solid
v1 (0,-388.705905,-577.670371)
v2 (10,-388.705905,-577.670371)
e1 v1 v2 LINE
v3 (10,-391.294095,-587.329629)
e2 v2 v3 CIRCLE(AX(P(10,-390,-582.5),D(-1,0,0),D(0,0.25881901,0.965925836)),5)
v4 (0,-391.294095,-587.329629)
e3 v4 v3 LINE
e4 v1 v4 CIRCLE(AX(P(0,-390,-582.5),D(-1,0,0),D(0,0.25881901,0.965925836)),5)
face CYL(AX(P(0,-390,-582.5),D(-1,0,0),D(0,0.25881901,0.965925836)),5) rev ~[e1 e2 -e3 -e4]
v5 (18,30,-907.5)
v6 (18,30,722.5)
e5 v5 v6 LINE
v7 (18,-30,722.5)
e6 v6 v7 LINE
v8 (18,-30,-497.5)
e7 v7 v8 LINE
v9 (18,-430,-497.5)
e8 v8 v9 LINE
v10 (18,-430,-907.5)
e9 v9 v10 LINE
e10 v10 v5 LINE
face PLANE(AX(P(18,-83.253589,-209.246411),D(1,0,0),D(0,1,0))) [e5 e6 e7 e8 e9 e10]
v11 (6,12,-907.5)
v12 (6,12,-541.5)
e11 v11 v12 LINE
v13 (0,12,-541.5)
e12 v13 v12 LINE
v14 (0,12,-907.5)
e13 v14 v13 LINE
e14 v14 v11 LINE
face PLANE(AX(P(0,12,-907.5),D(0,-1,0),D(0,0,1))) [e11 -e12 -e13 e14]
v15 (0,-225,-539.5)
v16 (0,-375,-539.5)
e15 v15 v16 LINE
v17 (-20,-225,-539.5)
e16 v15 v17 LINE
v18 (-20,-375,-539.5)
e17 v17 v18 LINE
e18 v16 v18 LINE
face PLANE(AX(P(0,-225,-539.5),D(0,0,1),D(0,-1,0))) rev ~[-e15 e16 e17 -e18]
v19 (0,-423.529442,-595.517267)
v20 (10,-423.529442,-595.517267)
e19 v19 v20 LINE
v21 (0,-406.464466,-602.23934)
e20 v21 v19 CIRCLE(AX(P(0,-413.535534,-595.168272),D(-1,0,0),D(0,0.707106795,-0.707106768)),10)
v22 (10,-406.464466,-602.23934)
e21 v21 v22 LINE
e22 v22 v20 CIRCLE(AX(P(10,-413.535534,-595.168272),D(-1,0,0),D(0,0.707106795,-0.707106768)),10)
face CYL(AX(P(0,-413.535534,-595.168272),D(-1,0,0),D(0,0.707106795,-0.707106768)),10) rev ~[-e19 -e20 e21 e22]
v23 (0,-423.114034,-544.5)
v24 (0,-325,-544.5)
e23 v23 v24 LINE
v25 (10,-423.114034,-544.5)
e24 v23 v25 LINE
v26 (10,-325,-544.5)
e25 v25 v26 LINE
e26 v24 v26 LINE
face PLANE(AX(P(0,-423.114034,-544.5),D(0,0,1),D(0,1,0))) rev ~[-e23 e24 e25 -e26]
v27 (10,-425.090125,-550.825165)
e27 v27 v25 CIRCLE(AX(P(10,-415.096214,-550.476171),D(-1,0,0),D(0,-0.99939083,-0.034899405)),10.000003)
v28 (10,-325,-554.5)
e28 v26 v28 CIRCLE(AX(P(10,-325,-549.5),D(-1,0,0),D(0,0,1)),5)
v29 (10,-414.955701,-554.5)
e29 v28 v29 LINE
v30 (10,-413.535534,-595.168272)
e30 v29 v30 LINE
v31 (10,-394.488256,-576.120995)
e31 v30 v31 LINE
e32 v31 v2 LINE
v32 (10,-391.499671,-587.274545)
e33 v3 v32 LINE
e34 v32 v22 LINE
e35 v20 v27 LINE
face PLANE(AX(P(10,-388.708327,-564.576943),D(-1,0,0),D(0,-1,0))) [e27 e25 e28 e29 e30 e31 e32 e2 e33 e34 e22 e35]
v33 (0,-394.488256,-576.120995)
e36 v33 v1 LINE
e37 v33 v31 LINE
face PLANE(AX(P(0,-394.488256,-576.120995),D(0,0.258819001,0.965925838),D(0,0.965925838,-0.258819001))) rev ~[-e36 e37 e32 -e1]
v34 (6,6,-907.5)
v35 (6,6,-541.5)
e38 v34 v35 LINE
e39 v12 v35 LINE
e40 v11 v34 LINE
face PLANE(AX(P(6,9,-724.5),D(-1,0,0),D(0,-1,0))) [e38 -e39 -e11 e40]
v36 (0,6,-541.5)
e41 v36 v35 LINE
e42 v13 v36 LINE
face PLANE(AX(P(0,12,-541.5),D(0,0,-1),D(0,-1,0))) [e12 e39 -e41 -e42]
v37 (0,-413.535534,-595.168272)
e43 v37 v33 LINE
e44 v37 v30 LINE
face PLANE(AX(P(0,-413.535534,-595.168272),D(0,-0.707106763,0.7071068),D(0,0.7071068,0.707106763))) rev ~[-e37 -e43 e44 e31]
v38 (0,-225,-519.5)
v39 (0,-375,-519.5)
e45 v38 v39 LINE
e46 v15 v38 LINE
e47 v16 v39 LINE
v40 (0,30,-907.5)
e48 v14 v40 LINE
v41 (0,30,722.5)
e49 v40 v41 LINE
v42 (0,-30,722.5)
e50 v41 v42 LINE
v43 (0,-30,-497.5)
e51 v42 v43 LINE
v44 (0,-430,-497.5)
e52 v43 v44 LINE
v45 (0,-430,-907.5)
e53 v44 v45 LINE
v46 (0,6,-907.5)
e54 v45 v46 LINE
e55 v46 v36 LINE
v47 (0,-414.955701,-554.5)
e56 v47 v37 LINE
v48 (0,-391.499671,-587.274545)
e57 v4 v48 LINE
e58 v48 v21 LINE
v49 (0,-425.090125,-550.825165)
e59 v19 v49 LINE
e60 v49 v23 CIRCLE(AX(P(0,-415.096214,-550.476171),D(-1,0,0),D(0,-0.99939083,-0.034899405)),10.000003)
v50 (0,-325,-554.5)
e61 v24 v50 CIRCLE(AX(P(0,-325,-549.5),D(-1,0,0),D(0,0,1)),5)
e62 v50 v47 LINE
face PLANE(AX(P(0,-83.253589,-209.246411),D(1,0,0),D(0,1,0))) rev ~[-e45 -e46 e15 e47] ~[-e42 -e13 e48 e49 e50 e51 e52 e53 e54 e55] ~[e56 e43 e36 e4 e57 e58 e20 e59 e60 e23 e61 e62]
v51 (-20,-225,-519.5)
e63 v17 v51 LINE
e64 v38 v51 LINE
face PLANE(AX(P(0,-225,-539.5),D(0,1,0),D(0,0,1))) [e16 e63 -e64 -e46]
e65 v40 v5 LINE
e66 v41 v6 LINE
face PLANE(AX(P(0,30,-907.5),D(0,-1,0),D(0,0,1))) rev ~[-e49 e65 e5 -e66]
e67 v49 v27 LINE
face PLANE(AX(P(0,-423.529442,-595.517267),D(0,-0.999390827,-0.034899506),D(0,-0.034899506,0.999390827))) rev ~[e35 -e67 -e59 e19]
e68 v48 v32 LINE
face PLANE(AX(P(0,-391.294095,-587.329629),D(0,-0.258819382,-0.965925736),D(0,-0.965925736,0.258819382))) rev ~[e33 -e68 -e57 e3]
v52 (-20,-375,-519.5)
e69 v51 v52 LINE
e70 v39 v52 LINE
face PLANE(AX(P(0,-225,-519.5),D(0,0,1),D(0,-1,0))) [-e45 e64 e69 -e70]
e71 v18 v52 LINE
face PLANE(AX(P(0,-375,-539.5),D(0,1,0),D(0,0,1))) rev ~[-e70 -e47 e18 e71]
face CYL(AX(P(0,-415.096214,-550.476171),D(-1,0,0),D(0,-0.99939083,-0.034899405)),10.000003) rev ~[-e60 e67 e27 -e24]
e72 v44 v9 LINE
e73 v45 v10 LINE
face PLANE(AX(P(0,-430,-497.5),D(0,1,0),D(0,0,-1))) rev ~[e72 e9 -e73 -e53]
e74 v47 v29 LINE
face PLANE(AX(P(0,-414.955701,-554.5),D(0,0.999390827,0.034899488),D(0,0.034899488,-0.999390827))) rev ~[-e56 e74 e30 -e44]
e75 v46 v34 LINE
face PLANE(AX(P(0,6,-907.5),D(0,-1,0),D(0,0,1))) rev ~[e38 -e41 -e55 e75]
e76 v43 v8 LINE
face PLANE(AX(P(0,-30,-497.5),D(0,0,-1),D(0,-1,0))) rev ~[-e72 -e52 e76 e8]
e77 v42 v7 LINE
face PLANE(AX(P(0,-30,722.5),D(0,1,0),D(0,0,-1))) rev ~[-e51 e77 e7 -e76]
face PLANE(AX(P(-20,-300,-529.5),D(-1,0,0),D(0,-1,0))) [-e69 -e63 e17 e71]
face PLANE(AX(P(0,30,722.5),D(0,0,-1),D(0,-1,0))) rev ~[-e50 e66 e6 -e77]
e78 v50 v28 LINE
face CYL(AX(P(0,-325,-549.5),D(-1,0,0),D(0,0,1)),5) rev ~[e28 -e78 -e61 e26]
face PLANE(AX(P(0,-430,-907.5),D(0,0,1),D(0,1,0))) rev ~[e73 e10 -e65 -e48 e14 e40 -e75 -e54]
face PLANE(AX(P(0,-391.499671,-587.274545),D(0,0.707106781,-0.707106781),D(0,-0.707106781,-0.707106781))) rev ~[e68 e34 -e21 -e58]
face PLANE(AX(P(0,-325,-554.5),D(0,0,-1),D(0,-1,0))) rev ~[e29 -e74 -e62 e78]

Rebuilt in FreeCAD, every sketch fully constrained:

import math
import FreeCAD as App
import Part
import Sketcher

V = App.Vector
Q = App.Units.Quantity

doc = App.newDocument("Part")
body = doc.addObject("PartDesign::Body", "Body")

# Sketch on YZ plane
sketch1 = doc.addObject("Sketcher::SketchObject", "Sketch")
body.addObject(sketch1)
sketch1.AttachmentSupport = (doc.YZ_Plane, [""])
sketch1.MapMode = "FlatFace"
sketch1.addGeometry([
    Part.LineSegment(V(30, -907.5, 0), V(30, 722.5, 0)),  # 0
    Part.LineSegment(V(30, 722.5, 0), V(-30, 722.5, 0)),  # 1
    Part.LineSegment(V(-30, 722.5, 0), V(-30, -497.5, 0)),  # 2
    Part.LineSegment(V(-30, -497.5, 0), V(-430, -497.5, 0)),  # 3
    Part.LineSegment(V(-430, -497.5, 0), V(-430, -907.5, 0)),  # 4
    Part.LineSegment(V(-430, -907.5, 0), V(30, -907.5, 0)),  # 5
], False)
sketch1.addConstraint([
    Sketcher.Constraint("Coincident", 0, 2, 1, 1),
    Sketcher.Constraint("Coincident", 1, 2, 2, 1),
    Sketcher.Constraint("Coincident", 2, 2, 3, 1),
    Sketcher.Constraint("Coincident", 3, 2, 4, 1),
    Sketcher.Constraint("Coincident", 4, 2, 5, 1),
    Sketcher.Constraint("Coincident", 5, 2, 0, 1),
    Sketcher.Constraint("Vertical", 0),
    Sketcher.Constraint("Horizontal", 1),
    Sketcher.Constraint("Vertical", 2),
    Sketcher.Constraint("Horizontal", 3),
    Sketcher.Constraint("Vertical", 4),
    Sketcher.Constraint("Horizontal", 5),
    Sketcher.Constraint("DistanceX", 1, 2, 1, 1, 60.0),
    Sketcher.Constraint("DistanceX", 3, 2, 3, 1, 400.0),
    Sketcher.Constraint("DistanceY", 0, 1, 0, 2, 1630.0),
    Sketcher.Constraint("DistanceY", 2, 2, 2, 1, 1220.0),
    Sketcher.Constraint("DistanceX", -1, 1, 0, 2, 30.0),
    Sketcher.Constraint("DistanceY", -1, 1, 0, 2, 722.5),
])
pad1 = doc.addObject("PartDesign::Pad", "Pad")
body.addObject(pad1)
pad1.Profile = sketch1
pad1.Length = 18

# Sketch on YZ plane
sketch2 = doc.addObject("Sketcher::SketchObject", "Sketch001")
body.addObject(sketch2)
sketch2.AttachmentSupport = (doc.YZ_Plane, [""])
sketch2.MapMode = "FlatFace"
sketch2.addGeometry([
    Part.LineSegment(V(12, -541.5, 0), V(12, -907.5, 0)),
    Part.LineSegment(V(12, -907.5, 0), V(6, -907.5, 0)),
    Part.LineSegment(V(6, -907.5, 0), V(6, -541.5, 0)),
    Part.LineSegment(V(6, -541.5, 0), V(12, -541.5, 0)),
], False)
sketch2.addConstraint([
    Sketcher.Constraint("Coincident", 0, 2, 1, 1),
    Sketcher.Constraint("Coincident", 1, 2, 2, 1),
    Sketcher.Constraint("Coincident", 2, 2, 3, 1),
    Sketcher.Constraint("Coincident", 3, 2, 0, 1),
    Sketcher.Constraint("Vertical", 0),
    Sketcher.Constraint("Horizontal", 1),
    Sketcher.Constraint("Vertical", 2),
    Sketcher.Constraint("Horizontal", 3),
    Sketcher.Constraint("DistanceX", 1, 2, 1, 1, 6.0),
    Sketcher.Constraint("DistanceY", 0, 2, 0, 1, 366.0),
    Sketcher.Constraint("DistanceX", -1, 1, 0, 2, 12.0),
    Sketcher.Constraint("DistanceY", 0, 2, -1, 1, 907.5),
])
pocket1 = doc.addObject("PartDesign::Pocket", "Pocket")
body.addObject(pocket1)
pocket1.Profile = sketch2
pocket1.Length = 6
pocket1.Reversed = True

# Sketch on YZ plane
sketch3 = doc.addObject("Sketcher::SketchObject", "Sketch002")
body.addObject(sketch3)
sketch3.AttachmentSupport = (doc.YZ_Plane, [""])
sketch3.MapMode = "FlatFace"
sketch3.addGeometry([
    Part.LineSegment(V(-394.488256, -576.120995, 0), V(-388.705905, -577.670371, 0)),  # 0
    Part.ArcOfCircle(Part.Circle(V(-390, -582.5, 0), V(0, 0, 1), 5), math.radians(-104.999998), math.radians(75.000002)),  # 1
    Part.LineSegment(V(-391.294095, -587.329629, 0), V(-391.499671, -587.274545, 0)),  # 2
    Part.LineSegment(V(-391.499671, -587.274545, 0), V(-406.464466, -602.23934, 0)),  # 3
    Part.ArcOfCircle(Part.Circle(V(-413.535534, -595.168272, 0), V(0, 0, 1), 10), math.radians(-178.000002), math.radians(-44.999999)),  # 4
    Part.LineSegment(V(-423.529442, -595.517267, 0), V(-425.090125, -550.825165, 0)),  # 5
    Part.ArcOfCircle(Part.Circle(V(-415.096214, -550.476171, 0), V(0, 0, 1), 10.000003), math.radians(143.300589), math.radians(181.999995)),  # 6
    Part.LineSegment(V(-423.114034, -544.5, 0), V(-325, -544.5, 0)),  # 7
    Part.ArcOfCircle(Part.Circle(V(-325, -549.5, 0), V(0, 0, 1), 5), math.radians(-90), math.radians(90)),  # 8
    Part.LineSegment(V(-325, -554.5, 0), V(-414.955701, -554.5, 0)),  # 9
    Part.LineSegment(V(-414.955701, -554.5, 0), V(-413.535534, -595.168272, 0)),  # 10
    Part.LineSegment(V(-413.535534, -595.168272, 0), V(-394.488256, -576.120995, 0)),  # 11
], False)
sketch3.addConstraint([
    Sketcher.Constraint("Tangent", 0, 2, 1, 2),
    Sketcher.Constraint("Tangent", 1, 1, 2, 1),
    Sketcher.Constraint("Coincident", 2, 2, 3, 1),
    Sketcher.Constraint("Tangent", 3, 2, 4, 2),
    Sketcher.Constraint("Tangent", 4, 1, 5, 1),
    Sketcher.Constraint("Tangent", 5, 2, 6, 2),
    Sketcher.Constraint("Coincident", 6, 1, 7, 1),
    Sketcher.Constraint("Tangent", 7, 2, 8, 2),
    Sketcher.Constraint("Tangent", 8, 1, 9, 1),
    Sketcher.Constraint("Coincident", 9, 2, 10, 1),
    Sketcher.Constraint("Coincident", 10, 2, 11, 1),
    Sketcher.Constraint("Coincident", 11, 2, 0, 1),
    Sketcher.Constraint("Horizontal", 7),
    Sketcher.Constraint("Horizontal", 9),
    Sketcher.Constraint("Coincident", 10, 2, 4, 3),
    Sketcher.Constraint("Equal", 1, 8),
    Sketcher.Constraint("Parallel", 0, 2),
    Sketcher.Constraint("Parallel", 5, 10),
    Sketcher.Constraint("Parallel", 3, 11),
    Sketcher.Constraint("Radius", 1, 5.0),
    Sketcher.Constraint("Radius", 4, 10.0),
    Sketcher.Constraint("Angle", 0, Q("-14.999997 deg")),
    Sketcher.Constraint("Angle", 3, Q("-135 deg")),
    Sketcher.Constraint("Angle", 5, Q("92.000001 deg")),
    Sketcher.Constraint("DistanceX", 1, 3, -1, 1, 390.0),
    Sketcher.Constraint("DistanceX", 8, 3, -1, 1, 325.0),
    Sketcher.Constraint("DistanceY", 1, 3, 8, 3, 33.0),
    Sketcher.Constraint("DistanceY", 1, 3, -1, 1, 582.5),
    Sketcher.Constraint("DistanceX", 9, 2, 9, 1, 89.955701),
    Sketcher.Constraint("Radius", 6, 10.000003),
    Sketcher.Constraint("DistanceY", 4, 3, 6, 3, 44.692102),
    Sketcher.Constraint("DistanceY", 4, 3, 0, 2, 17.497901),
])
pocket2 = doc.addObject("PartDesign::Pocket", "Pocket001")
body.addObject(pocket2)
pocket2.Profile = sketch3
pocket2.Length = 10
pocket2.Reversed = True

# Sketch on YZ plane
sketch4 = doc.addObject("Sketcher::SketchObject", "Sketch003")
body.addObject(sketch4)
sketch4.AttachmentSupport = (doc.YZ_Plane, [""])
sketch4.MapMode = "FlatFace"
sketch4.addGeometry([
    Part.LineSegment(V(-225, -519.5, 0), V(-225, -539.5, 0)),
    Part.LineSegment(V(-225, -539.5, 0), V(-375, -539.5, 0)),
    Part.LineSegment(V(-375, -539.5, 0), V(-375, -519.5, 0)),
    Part.LineSegment(V(-375, -519.5, 0), V(-225, -519.5, 0)),
], False)
sketch4.addConstraint([
    Sketcher.Constraint("Coincident", 0, 2, 1, 1),
    Sketcher.Constraint("Coincident", 1, 2, 2, 1),
    Sketcher.Constraint("Coincident", 2, 2, 3, 1),
    Sketcher.Constraint("Coincident", 3, 2, 0, 1),
    Sketcher.Constraint("Vertical", 0),
    Sketcher.Constraint("Horizontal", 1),
    Sketcher.Constraint("Vertical", 2),
    Sketcher.Constraint("Horizontal", 3),
    Sketcher.Constraint("DistanceX", 1, 2, 1, 1, 150.0),
    Sketcher.Constraint("DistanceY", 0, 2, 0, 1, 20.0),
    Sketcher.Constraint("DistanceX", 0, 2, -1, 1, 225.0),
    Sketcher.Constraint("DistanceY", 0, 2, -1, 1, 539.5),
])
pad2 = doc.addObject("PartDesign::Pad", "Pad001")
body.addObject(pad2)
pad2.Profile = sketch4
pad2.Length = 20
pad2.Reversed = True

doc.recompute()
